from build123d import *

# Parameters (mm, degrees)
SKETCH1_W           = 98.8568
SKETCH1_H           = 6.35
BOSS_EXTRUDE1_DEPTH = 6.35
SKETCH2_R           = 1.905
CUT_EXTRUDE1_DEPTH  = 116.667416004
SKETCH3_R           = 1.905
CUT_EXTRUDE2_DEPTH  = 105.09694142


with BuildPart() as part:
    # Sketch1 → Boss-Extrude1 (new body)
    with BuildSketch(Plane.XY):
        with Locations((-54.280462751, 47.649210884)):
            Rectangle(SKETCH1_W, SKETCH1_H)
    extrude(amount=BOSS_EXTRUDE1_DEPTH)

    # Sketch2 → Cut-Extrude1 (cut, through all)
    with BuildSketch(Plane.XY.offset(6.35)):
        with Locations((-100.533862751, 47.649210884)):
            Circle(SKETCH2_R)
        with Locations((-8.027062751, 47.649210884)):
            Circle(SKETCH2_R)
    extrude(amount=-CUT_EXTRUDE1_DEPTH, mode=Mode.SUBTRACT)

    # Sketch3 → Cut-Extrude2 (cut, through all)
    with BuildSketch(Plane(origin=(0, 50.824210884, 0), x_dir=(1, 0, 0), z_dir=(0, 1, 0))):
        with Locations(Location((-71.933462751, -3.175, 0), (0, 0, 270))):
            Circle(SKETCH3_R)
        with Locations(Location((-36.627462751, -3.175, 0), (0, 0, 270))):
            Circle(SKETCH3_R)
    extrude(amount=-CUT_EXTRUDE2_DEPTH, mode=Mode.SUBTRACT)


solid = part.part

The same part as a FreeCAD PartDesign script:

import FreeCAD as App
import Part
import Sketcher

V = App.Vector
Q = App.Units.Quantity

doc = App.newDocument("Part")
body = doc.addObject("PartDesign::Body", "Body")

# Sketch on XY plane
sketch1 = body.newObject("Sketcher::SketchObject", "Sketch")
sketch1.AttachmentSupport = (doc.getObject("XY_Plane"), [""])
sketch1.MapMode = "FlatFace"
sketch1.addGeometry(Part.LineSegment(V(-104, 51, 0), V(-104, 44, 0)), False)
sketch1.addGeometry(Part.LineSegment(V(-104, 44, 0), V(-5, 44, 0)), False)
sketch1.addGeometry(Part.LineSegment(V(-5, 44, 0), V(-5, 51, 0)), False)
sketch1.addGeometry(Part.LineSegment(V(-5, 51, 0), V(-104, 51, 0)), False)
sketch1.addConstraint(Sketcher.Constraint("Coincident", 0, 2, 1, 1))
sketch1.addConstraint(Sketcher.Constraint("Coincident", 1, 2, 2, 1))
sketch1.addConstraint(Sketcher.Constraint("Coincident", 2, 2, 3, 1))
sketch1.addConstraint(Sketcher.Constraint("Coincident", 3, 2, 0, 1))
sketch1.addConstraint(Sketcher.Constraint("Vertical", 0))
sketch1.addConstraint(Sketcher.Constraint("Horizontal", 1))
sketch1.addConstraint(Sketcher.Constraint("Vertical", 2))
sketch1.addConstraint(Sketcher.Constraint("Horizontal", 3))
sketch1.addConstraint(Sketcher.Constraint("DistanceY", 0, 2, 0, 1, Q("0.25 in")))
sketch1.addConstraint(Sketcher.Constraint("DistanceX", 1, 1, 1, 2, Q("3.892 in")))
sketch1.addConstraint(Sketcher.Constraint("DistanceY", -1, 1, 0, 2, Q("44.474211 mm")))
sketch1.addConstraint(Sketcher.Constraint("DistanceX", 0, 2, -1, 1, Q("103.708863 mm")))
pad1 = body.newObject("PartDesign::Pad", "Pad")
pad1.Profile = sketch1
pad1.Length = Q("0.25 in")

# Sketch on XY plane
sketch2 = body.newObject("Sketcher::SketchObject", "Sketch001")
sketch2.AttachmentSupport = (doc.getObject("XY_Plane"), [""])
sketch2.MapMode = "FlatFace"
sketch2.AttachmentOffset = App.Placement(V(0, 0, 0.25 * 25.4), App.Rotation())
sketch2.addGeometry(Part.Circle(V(-100.5, 47.6, 0), V(0, 0, 1), 1.9), False)
sketch2.addGeometry(Part.Circle(V(-8, 47.6, 0), V(0, 0, 1), 1.9), False)
sketch2.addConstraint(Sketcher.Constraint("Equal", 0, 1))
sketch2.addConstraint(Sketcher.Constraint("Horizontal", 0, 3, 1, 3))
sketch2.addConstraint(Sketcher.Constraint("Diameter", 0, Q("0.15 in")))
sketch2.addConstraint(Sketcher.Constraint("DistanceX", 0, 3, 1, 3, Q("3.642 in")))
sketch2.addConstraint(Sketcher.Constraint("DistanceY", -1, 1, 0, 3, Q("47.649211 mm")))
sketch2.addConstraint(Sketcher.Constraint("DistanceX", 0, 3, -1, 1, Q("100.533863 mm")))
pocket1 = body.newObject("PartDesign::Pocket", "Pocket")
pocket1.Profile = sketch2
pocket1.Type = "ThroughAll"

# Sketch on XZ plane
sketch3 = body.newObject("Sketcher::SketchObject", "Sketch002")
sketch3.AttachmentSupport = (doc.getObject("XZ_Plane"), [""])
sketch3.MapMode = "FlatFace"
sketch3.AttachmentOffset = App.Placement(V(0, 0, -50.824211), App.Rotation())
sketch3.addGeometry(Part.Circle(V(-71.9, 3.2, 0), V(0, 0, 1), 1.9), False)
sketch3.addGeometry(Part.Circle(V(-36.6, 3.2, 0), V(0, 0, 1), 1.9), False)
sketch3.addConstraint(Sketcher.Constraint("Equal", 0, 1))
sketch3.addConstraint(Sketcher.Constraint("Horizontal", 0, 3, 1, 3))
sketch3.addConstraint(Sketcher.Constraint("Diameter", 0, Q("0.15 in")))
sketch3.addConstraint(Sketcher.Constraint("DistanceX", 0, 3, 1, 3, Q("1.39 in")))
sketch3.addConstraint(Sketcher.Constraint("DistanceY", -1, 1, 0, 3, Q("0.125 in")))
sketch3.addConstraint(Sketcher.Constraint("DistanceX", 0, 3, -1, 1, Q("71.933463 mm")))
pocket2 = body.newObject("PartDesign::Pocket", "Pocket001")
pocket2.Profile = sketch3
pocket2.Type = "ThroughAll"
pocket2.Reversed = True

doc.recompute()
